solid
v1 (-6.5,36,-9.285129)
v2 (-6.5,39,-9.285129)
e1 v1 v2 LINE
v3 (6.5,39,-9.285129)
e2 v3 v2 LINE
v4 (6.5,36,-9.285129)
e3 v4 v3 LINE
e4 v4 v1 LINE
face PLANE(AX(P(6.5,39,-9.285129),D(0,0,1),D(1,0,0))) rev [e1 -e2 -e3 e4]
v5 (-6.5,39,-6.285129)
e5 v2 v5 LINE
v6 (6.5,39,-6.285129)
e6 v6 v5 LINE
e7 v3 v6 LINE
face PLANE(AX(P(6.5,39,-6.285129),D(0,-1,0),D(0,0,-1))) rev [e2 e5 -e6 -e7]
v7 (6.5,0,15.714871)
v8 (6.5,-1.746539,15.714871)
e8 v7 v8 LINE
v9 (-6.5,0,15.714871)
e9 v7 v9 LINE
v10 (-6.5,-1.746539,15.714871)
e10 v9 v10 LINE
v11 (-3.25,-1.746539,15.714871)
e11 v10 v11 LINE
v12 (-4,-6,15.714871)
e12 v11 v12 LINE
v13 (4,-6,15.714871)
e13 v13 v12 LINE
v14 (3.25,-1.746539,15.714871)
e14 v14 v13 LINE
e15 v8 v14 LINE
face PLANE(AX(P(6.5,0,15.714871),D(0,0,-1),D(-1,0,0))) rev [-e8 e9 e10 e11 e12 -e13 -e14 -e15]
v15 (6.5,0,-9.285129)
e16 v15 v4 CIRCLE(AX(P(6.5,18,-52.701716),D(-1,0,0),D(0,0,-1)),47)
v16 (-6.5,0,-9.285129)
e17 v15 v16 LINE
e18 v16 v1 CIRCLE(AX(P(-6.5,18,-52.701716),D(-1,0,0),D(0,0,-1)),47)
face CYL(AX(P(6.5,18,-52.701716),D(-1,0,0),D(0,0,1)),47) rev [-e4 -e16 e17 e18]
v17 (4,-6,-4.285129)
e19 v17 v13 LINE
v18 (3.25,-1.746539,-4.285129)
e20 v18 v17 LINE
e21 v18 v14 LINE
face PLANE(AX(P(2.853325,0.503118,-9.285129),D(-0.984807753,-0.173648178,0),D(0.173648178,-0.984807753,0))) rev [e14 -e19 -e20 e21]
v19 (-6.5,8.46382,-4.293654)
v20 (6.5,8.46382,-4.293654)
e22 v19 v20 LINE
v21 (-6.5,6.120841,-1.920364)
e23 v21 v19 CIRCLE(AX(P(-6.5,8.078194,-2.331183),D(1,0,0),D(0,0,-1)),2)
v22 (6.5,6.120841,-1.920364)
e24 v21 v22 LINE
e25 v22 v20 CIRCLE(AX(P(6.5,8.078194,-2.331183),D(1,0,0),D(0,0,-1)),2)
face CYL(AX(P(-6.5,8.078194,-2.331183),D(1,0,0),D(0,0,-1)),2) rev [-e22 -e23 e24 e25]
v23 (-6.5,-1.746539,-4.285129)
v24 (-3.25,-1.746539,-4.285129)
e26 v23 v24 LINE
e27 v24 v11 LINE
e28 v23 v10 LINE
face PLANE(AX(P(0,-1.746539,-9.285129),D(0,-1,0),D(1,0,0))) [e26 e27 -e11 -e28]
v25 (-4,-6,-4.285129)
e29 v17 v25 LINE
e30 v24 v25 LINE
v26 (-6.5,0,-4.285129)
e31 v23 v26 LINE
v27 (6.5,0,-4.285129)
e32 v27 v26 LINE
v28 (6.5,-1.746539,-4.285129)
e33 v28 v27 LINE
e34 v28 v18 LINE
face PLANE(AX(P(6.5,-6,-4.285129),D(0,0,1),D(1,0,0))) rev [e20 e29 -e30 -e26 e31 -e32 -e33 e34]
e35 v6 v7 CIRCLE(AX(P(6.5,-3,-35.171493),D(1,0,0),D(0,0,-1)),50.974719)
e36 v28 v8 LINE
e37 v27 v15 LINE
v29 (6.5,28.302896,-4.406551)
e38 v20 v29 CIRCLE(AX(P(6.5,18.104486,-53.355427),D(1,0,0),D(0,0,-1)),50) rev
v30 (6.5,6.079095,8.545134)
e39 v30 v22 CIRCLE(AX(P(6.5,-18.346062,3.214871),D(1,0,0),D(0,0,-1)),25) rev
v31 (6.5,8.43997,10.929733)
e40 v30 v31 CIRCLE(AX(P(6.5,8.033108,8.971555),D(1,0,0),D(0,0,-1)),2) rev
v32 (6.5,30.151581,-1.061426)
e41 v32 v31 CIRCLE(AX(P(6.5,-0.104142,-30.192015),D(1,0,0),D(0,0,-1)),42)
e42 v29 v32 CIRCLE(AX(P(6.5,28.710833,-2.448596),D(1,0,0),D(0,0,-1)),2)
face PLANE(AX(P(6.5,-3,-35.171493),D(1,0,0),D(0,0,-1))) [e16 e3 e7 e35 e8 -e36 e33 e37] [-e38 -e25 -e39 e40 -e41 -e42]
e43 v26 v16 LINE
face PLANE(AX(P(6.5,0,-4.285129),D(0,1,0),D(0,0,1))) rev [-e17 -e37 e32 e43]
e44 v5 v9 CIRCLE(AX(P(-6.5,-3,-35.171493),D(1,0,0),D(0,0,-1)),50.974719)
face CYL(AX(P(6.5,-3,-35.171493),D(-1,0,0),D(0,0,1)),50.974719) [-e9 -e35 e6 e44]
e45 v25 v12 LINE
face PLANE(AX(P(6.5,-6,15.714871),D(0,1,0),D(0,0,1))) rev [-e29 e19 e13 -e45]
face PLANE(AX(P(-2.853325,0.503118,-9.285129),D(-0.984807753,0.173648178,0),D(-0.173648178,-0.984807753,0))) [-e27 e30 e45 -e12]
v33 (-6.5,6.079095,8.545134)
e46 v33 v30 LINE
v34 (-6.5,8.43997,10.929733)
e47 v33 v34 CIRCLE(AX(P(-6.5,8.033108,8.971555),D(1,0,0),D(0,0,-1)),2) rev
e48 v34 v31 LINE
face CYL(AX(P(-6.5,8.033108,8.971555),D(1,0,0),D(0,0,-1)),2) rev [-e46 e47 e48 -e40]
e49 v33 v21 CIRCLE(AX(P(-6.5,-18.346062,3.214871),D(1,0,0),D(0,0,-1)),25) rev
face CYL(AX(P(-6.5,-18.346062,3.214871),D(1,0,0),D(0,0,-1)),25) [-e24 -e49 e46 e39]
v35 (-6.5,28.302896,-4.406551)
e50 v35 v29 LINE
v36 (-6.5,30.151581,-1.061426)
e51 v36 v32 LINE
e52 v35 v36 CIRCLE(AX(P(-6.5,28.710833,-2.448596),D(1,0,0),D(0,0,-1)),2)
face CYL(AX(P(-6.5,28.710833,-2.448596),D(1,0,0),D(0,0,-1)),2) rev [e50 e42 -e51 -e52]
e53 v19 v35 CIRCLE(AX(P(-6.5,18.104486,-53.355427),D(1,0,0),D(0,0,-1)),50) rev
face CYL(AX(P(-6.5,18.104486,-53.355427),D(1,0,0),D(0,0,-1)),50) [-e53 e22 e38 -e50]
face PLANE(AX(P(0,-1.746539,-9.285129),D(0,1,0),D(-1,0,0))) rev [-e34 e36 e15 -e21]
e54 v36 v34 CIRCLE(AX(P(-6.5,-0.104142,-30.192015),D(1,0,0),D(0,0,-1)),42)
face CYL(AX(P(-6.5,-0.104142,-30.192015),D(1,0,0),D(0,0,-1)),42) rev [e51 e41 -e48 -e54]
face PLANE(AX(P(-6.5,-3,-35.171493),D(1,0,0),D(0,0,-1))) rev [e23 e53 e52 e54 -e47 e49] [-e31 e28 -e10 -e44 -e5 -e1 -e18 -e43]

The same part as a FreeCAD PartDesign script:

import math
import FreeCAD as App
import Part
import Sketcher
Q = App.Units.Quantity

doc = App.newDocument("Part")
body = doc.addObject("PartDesign::Body", "Body")

# Sketch on YZ plane
sketch1 = body.newObject("Sketcher::SketchObject", "Sketch")
sketch1.AttachmentSupport = (doc.getObject("YZ_Plane"), [""])
sketch1.MapMode = "FlatFace"
sketch1.addGeometry(Part.LineSegment(App.Vector(0, 15.714871, 0), App.Vector(-6, 15.714871, 0)), False)
sketch1.addGeometry(Part.LineSegment(App.Vector(-6, 15.714871, 0), App.Vector(-6, -4.285129, 0)), False)
sketch1.addGeometry(Part.LineSegment(App.Vector(-6, -4.285129, 0), App.Vector(0, -4.285129, 0)), False)
sketch1.addGeometry(Part.LineSegment(App.Vector(0, -4.285129, 0), App.Vector(0, -9.285129, 0)), False)
sketch1.addGeometry(Part.ArcOfCircle(Part.Circle(App.Vector(18, -52.701716, 0), App.Vector(0, 0, 1), 47), math.radians(67.481686), math.radians(112.518314)), False)
sketch1.addGeometry(Part.LineSegment(App.Vector(36, -9.285129, 0), App.Vector(39, -9.285129, 0)), False)
sketch1.addGeometry(Part.LineSegment(App.Vector(39, -9.285129, 0), App.Vector(39, -6.285129, 0)), False)
sketch1.addGeometry(Part.ArcOfCircle(Part.Circle(App.Vector(-3, -35.171493, 0), App.Vector(0, 0, 1), 50.974719), math.radians(34.519048), math.radians(86.626039)), False)
sketch1.addConstraint(Sketcher.Constraint("Coincident", 0, 2, 1, 1))
sketch1.addConstraint(Sketcher.Constraint("Coincident", 1, 2, 2, 1))
sketch1.addConstraint(Sketcher.Constraint("Coincident", 2, 2, 3, 1))
sketch1.addConstraint(Sketcher.Constraint("Coincident", 3, 2, 4, 2))
sketch1.addConstraint(Sketcher.Constraint("Coincident", 4, 1, 5, 1))
sketch1.addConstraint(Sketcher.Constraint("Coincident", 5, 2, 6, 1))
sketch1.addConstraint(Sketcher.Constraint("Coincident", 6, 2, 7, 1))
sketch1.addConstraint(Sketcher.Constraint("Coincident", 7, 2, 0, 1))
sketch1.addConstraint(Sketcher.Constraint("Horizontal", 0))
sketch1.addConstraint(Sketcher.Constraint("Vertical", 1))
sketch1.addConstraint(Sketcher.Constraint("Horizontal", 2))
sketch1.addConstraint(Sketcher.Constraint("Vertical", 3))
sketch1.addConstraint(Sketcher.Constraint("Horizontal", 5))
sketch1.addConstraint(Sketcher.Constraint("Vertical", 6))
sketch1.addConstraint(Sketcher.Constraint("PointOnObject", 2, 2, -2))
sketch1.addConstraint(Sketcher.Constraint("PointOnObject", 7, 2, -2))
sketch1.addConstraint(Sketcher.Constraint("Horizontal", 3, 2, 4, 1))
sketch1.addConstraint(Sketcher.Constraint("Equal", 5, 6))
sketch1.addConstraint(Sketcher.Constraint("Radius", 4, Q("47 mm")))
sketch1.addConstraint(Sketcher.Constraint("DistanceX", 0, 2, 0, 1, Q("6 mm")))
sketch1.addConstraint(Sketcher.Constraint("DistanceX", 5, 1, 5, 2, Q("3 mm")))
sketch1.addConstraint(Sketcher.Constraint("DistanceY", 1, 2, 1, 1, Q("20 mm")))
sketch1.addConstraint(Sketcher.Constraint("DistanceY", 3, 2, 3, 1, Q("5 mm")))
sketch1.addConstraint(Sketcher.Constraint("DistanceX", -1, 1, 4, 3, Q("18 mm")))
sketch1.addConstraint(Sketcher.Constraint("DistanceX", 7, 3, -1, 1, Q("3 mm")))
sketch1.addConstraint(Sketcher.Constraint("DistanceY", -1, 1, 0, 2, Q("15.714871 mm")))
pad1 = body.newObject("PartDesign::Pad", "Pad")
pad1.Profile = sketch1
pad1.Length = 13
pad1.Midplane = True

# Sketch on XY plane
sketch2 = body.newObject("Sketcher::SketchObject", "Sketch001")
sketch2.AttachmentSupport = (doc.getObject("XY_Plane"), [""])
sketch2.MapMode = "FlatFace"
sketch2.AttachmentOffset = App.Placement(App.Vector(0, 0, 15.714871), App.Rotation())
sketch2.addGeometry(Part.LineSegment(App.Vector(6.5, -6, 0), App.Vector(6.5, -1.746539, 0)), False)
sketch2.addGeometry(Part.LineSegment(App.Vector(6.5, -1.746539, 0), App.Vector(3.25, -1.746539, 0)), False)
sketch2.addGeometry(Part.LineSegment(App.Vector(3.25, -1.746539, 0), App.Vector(4, -6, 0)), False)
sketch2.addGeometry(Part.LineSegment(App.Vector(4, -6, 0), App.Vector(6.5, -6, 0)), False)
sketch2.addGeometry(Part.LineSegment(App.Vector(-6.5, -6, 0), App.Vector(-4, -6, 0)), False)
sketch2.addGeometry(Part.LineSegment(App.Vector(-4, -6, 0), App.Vector(-3.25, -1.746539, 0)), False)
sketch2.addGeometry(Part.LineSegment(App.Vector(-3.25, -1.746539, 0), App.Vector(-6.5, -1.746539, 0)), False)
sketch2.addGeometry(Part.LineSegment(App.Vector(-6.5, -1.746539, 0), App.Vector(-6.5, -6, 0)), False)
sketch2.addConstraint(Sketcher.Constraint("Coincident", 0, 2, 1, 1))
sketch2.addConstraint(Sketcher.Constraint("Coincident", 1, 2, 2, 1))
sketch2.addConstraint(Sketcher.Constraint("Coincident", 2, 2, 3, 1))
sketch2.addConstraint(Sketcher.Constraint("Coincident", 3, 2, 0, 1))
sketch2.addConstraint(Sketcher.Constraint("Coincident", 4, 2, 5, 1))
sketch2.addConstraint(Sketcher.Constraint("Coincident", 5, 2, 6, 1))
sketch2.addConstraint(Sketcher.Constraint("Coincident", 6, 2, 7, 1))
sketch2.addConstraint(Sketcher.Constraint("Coincident", 7, 2, 4, 1))
sketch2.addConstraint(Sketcher.Constraint("Vertical", 0))
sketch2.addConstraint(Sketcher.Constraint("Horizontal", 1))
sketch2.addConstraint(Sketcher.Constraint("Horizontal", 3))
sketch2.addConstraint(Sketcher.Constraint("Horizontal", 4))
sketch2.addConstraint(Sketcher.Constraint("Horizontal", 6))
sketch2.addConstraint(Sketcher.Constraint("Vertical", 7))
sketch2.addConstraint(Sketcher.Constraint("Symmetric", 2, 2, 4, 2, -2))
sketch2.addConstraint(Sketcher.Constraint("Symmetric", 1, 2, 5, 2, -2))
sketch2.addConstraint(Sketcher.Constraint("Equal", 3, 4))
sketch2.addConstraint(Sketcher.Constraint("Angle", 2, Q("-80 deg")))
sketch2.addConstraint(Sketcher.Constraint("DistanceX", 3, 1, 3, 2, Q("2.5 mm")))
sketch2.addConstraint(Sketcher.Constraint("DistanceX", -1, 1, 2, 2, Q("4 mm")))
sketch2.addConstraint(Sketcher.Constraint("DistanceY", 2, 2, -1, 1, Q("6 mm")))
sketch2.addConstraint(Sketcher.Constraint("DistanceX", 1, 2, 1, 1, Q("3.25 mm")))
pocket1 = body.newObject("PartDesign::Pocket", "Pocket")
pocket1.Profile = sketch2
pocket1.Type = "ThroughAll"

# Sketch on YZ plane
sketch3 = body.newObject("Sketcher::SketchObject", "Sketch002")
sketch3.AttachmentSupport = (doc.getObject("YZ_Plane"), [""])
sketch3.MapMode = "FlatFace"
sketch3.AttachmentOffset = App.Placement(App.Vector(0, 0, 6.5), App.Rotation())
sketch3.addGeometry(Part.ArcOfCircle(Part.Circle(App.Vector(18.104486, -53.355427, 0), App.Vector(0, 0, 1), 50), math.radians(78.230894), math.radians(101.117011)), False)
sketch3.addGeometry(Part.ArcOfCircle(Part.Circle(App.Vector(28.710833, -2.448596, 0), App.Vector(0, 0, 1), 2), math.radians(-101.769106), math.radians(43.914603)), False)
sketch3.addGeometry(Part.ArcOfCircle(Part.Circle(App.Vector(-0.104142, -30.192015, 0), App.Vector(0, 0, 1), 42), math.radians(43.914603), math.radians(78.26232)), False)
sketch3.addGeometry(Part.ArcOfCircle(Part.Circle(App.Vector(8.033108, 8.971555, 0), App.Vector(0, 0, 1), 2), math.radians(78.26232), math.radians(192.310564)), False)
sketch3.addGeometry(Part.ArcOfCircle(Part.Circle(App.Vector(-18.346062, 3.214871, 0), App.Vector(0, 0, 1), 25), math.radians(-11.853466), math.radians(12.310564)), False)
sketch3.addGeometry(Part.ArcOfCircle(Part.Circle(App.Vector(8.078194, -2.331183, 0), App.Vector(0, 0, 1), 2), math.radians(168.146534), math.radians(281.117011)), False)
sketch3.addConstraint(Sketcher.Constraint("Coincident", 0, 1, 1, 1))
sketch3.addConstraint(Sketcher.Constraint("Coincident", 1, 2, 2, 1))
sketch3.addConstraint(Sketcher.Constraint("Coincident", 2, 2, 3, 1))
sketch3.addConstraint(Sketcher.Constraint("Coincident", 3, 2, 4, 2))
sketch3.addConstraint(Sketcher.Constraint("Coincident", 4, 1, 5, 1))
sketch3.addConstraint(Sketcher.Constraint("Coincident", 5, 2, 0, 2))
sketch3.addConstraint(Sketcher.Constraint("Radius", 0, Q("50 mm")))
sketch3.addConstraint(Sketcher.Constraint("Radius", 1, Q("2 mm")))
sketch3.addConstraint(Sketcher.Constraint("Radius", 2, Q("42 mm")))
sketch3.addConstraint(Sketcher.Constraint("Radius", 3, Q("2 mm")))
sketch3.addConstraint(Sketcher.Constraint("Radius", 4, Q("25 mm")))
sketch3.addConstraint(Sketcher.Constraint("Radius", 5, Q("2 mm")))
sketch3.addConstraint(Sketcher.Constraint("DistanceY", 3, 2, 2, 2, Q("2.3846 mm")))
sketch3.addConstraint(Sketcher.Constraint("DistanceX", 3, 2, 5, 3, Q("1.999099 mm")))
sketch3.addConstraint(Sketcher.Constraint("DistanceY", 4, 1, 3, 2, Q("10.465498 mm")))
sketch3.addConstraint(Sketcher.Constraint("DistanceX", 2, 3, -1, 1, Q("0.104142 mm")))
sketch3.addConstraint(Sketcher.Constraint("DistanceX", 4, 3, -1, 1, Q("18.346062 mm")))
sketch3.addConstraint(Sketcher.Constraint("DistanceY", -1, 1, 4, 3, Q("3.214871 mm")))
sketch3.addConstraint(Sketcher.Constraint("DistanceY", 0, 1, -1, 1, Q("4.406551 mm")))
sketch3.addConstraint(Sketcher.Constraint("DistanceX", -1, 1, 1, 2, Q("30.151581 mm")))
sketch3.addConstraint(Sketcher.Constraint("DistanceX", -1, 1, 2, 2, Q("8.43997 mm")))
sketch3.addConstraint(Sketcher.Constraint("DistanceX", -1, 1, 4, 1, Q("6.120841 mm")))
sketch3.addConstraint(Sketcher.Constraint("DistanceX", -1, 1, 5, 2, Q("8.46382 mm")))
sketch3.addConstraint(Sketcher.Constraint("DistanceY", 0, 3, 1, 3, Q("50.906831 mm")))
pocket2 = body.newObject("PartDesign::Pocket", "Pocket001")
pocket2.Profile = sketch3
pocket2.Type = "ThroughAll"

doc.recompute()
